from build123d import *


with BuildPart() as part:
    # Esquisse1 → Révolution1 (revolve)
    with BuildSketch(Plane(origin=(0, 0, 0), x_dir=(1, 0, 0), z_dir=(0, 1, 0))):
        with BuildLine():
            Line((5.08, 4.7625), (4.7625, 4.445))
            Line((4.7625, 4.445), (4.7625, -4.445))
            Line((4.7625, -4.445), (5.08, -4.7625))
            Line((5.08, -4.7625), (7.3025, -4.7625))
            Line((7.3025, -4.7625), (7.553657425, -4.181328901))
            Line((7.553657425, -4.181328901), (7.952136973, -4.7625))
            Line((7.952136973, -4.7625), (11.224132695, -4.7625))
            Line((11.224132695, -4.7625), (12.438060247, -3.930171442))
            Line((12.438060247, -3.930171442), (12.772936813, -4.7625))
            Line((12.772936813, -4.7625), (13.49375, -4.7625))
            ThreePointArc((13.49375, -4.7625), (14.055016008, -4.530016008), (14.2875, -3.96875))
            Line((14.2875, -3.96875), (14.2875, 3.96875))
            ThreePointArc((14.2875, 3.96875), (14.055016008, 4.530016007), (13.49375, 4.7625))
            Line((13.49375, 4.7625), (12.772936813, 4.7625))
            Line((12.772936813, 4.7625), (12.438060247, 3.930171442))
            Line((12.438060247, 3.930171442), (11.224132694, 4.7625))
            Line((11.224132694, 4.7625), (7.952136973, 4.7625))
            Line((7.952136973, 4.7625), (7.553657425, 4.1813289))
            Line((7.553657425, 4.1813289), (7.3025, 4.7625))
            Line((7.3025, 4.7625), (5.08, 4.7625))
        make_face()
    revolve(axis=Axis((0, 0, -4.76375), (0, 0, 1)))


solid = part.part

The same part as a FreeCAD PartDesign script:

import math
import FreeCAD as App
import Part
import Sketcher
Q = App.Units.Quantity

doc = App.newDocument("Part")
body = doc.addObject("PartDesign::Body", "Body")

# Sketch on XZ plane
sketch1 = body.newObject("Sketcher::SketchObject", "Sketch")
sketch1.AttachmentSupport = (doc.getObject("XZ_Plane"), [""])
sketch1.MapMode = "FlatFace"
sketch1.addGeometry([
    Part.LineSegment(App.Vector(5.08, -4.76, 0), App.Vector(4.76, -4.45, 0)),  # 0
    Part.LineSegment(App.Vector(4.76, -4.45, 0), App.Vector(4.76, 4.45, 0)),  # 1
    Part.LineSegment(App.Vector(4.76, 4.45, 0), App.Vector(5.08, 4.76, 0)),  # 2
    Part.LineSegment(App.Vector(5.08, 4.76, 0), App.Vector(7.3, 4.76, 0)),  # 3
    Part.LineSegment(App.Vector(7.3, 4.76, 0), App.Vector(7.55, 4.18, 0)),  # 4
    Part.LineSegment(App.Vector(7.55, 4.18, 0), App.Vector(7.95, 4.76, 0)),  # 5
    Part.LineSegment(App.Vector(7.95, 4.76, 0), App.Vector(11.22, 4.76, 0)),  # 6
    Part.LineSegment(App.Vector(11.22, 4.76, 0), App.Vector(12.44, 3.93, 0)),  # 7
    Part.LineSegment(App.Vector(12.44, 3.93, 0), App.Vector(12.77, 4.76, 0)),  # 8
    Part.LineSegment(App.Vector(12.77, 4.76, 0), App.Vector(13.49, 4.76, 0)),  # 9
    Part.ArcOfCircle(Part.Circle(App.Vector(13.49, 3.97, 0), App.Vector(0, 0, 1), 0.79), math.radians(0), math.radians(90)),  # 10
    Part.LineSegment(App.Vector(14.29, 3.97, 0), App.Vector(14.29, -3.97, 0)),  # 11
    Part.ArcOfCircle(Part.Circle(App.Vector(13.49, -3.97, 0), App.Vector(0, 0, 1), 0.79), math.radians(-90), math.radians(0)),  # 12
    Part.LineSegment(App.Vector(13.49, -4.76, 0), App.Vector(12.77, -4.76, 0)),  # 13
    Part.LineSegment(App.Vector(12.77, -4.76, 0), App.Vector(12.44, -3.93, 0)),  # 14
    Part.LineSegment(App.Vector(12.44, -3.93, 0), App.Vector(11.22, -4.76, 0)),  # 15
    Part.LineSegment(App.Vector(11.22, -4.76, 0), App.Vector(7.95, -4.76, 0)),  # 16
    Part.LineSegment(App.Vector(7.95, -4.76, 0), App.Vector(7.55, -4.18, 0)),  # 17
    Part.LineSegment(App.Vector(7.55, -4.18, 0), App.Vector(7.3, -4.76, 0)),  # 18
    Part.LineSegment(App.Vector(7.3, -4.76, 0), App.Vector(5.08, -4.76, 0)),  # 19
], False)
sketch1.addConstraint([
    Sketcher.Constraint("Coincident", 0, 2, 1, 1),
    Sketcher.Constraint("Coincident", 1, 2, 2, 1),
    Sketcher.Constraint("Coincident", 2, 2, 3, 1),
    Sketcher.Constraint("Coincident", 3, 2, 4, 1),
    Sketcher.Constraint("Coincident", 4, 2, 5, 1),
    Sketcher.Constraint("Coincident", 5, 2, 6, 1),
    Sketcher.Constraint("Coincident", 6, 2, 7, 1),
    Sketcher.Constraint("Coincident", 7, 2, 8, 1),
    Sketcher.Constraint("Coincident", 8, 2, 9, 1),
    Sketcher.Constraint("Tangent", 9, 2, 10, 2),
    Sketcher.Constraint("Tangent", 10, 1, 11, 1),
    Sketcher.Constraint("Tangent", 11, 2, 12, 2),
    Sketcher.Constraint("Tangent", 12, 1, 13, 1),
    Sketcher.Constraint("Coincident", 13, 2, 14, 1),
    Sketcher.Constraint("Coincident", 14, 2, 15, 1),
    Sketcher.Constraint("Coincident", 15, 2, 16, 1),
    Sketcher.Constraint("Coincident", 16, 2, 17, 1),
    Sketcher.Constraint("Coincident", 17, 2, 18, 1),
    Sketcher.Constraint("Coincident", 18, 2, 19, 1),
    Sketcher.Constraint("Coincident", 19, 2, 0, 1),
    Sketcher.Constraint("Vertical", 1),
    Sketcher.Constraint("Horizontal", 3),
    Sketcher.Constraint("Horizontal", 6),
    Sketcher.Constraint("Horizontal", 9),
    Sketcher.Constraint("Vertical", 11),
    Sketcher.Constraint("Horizontal", 13),
    Sketcher.Constraint("Horizontal", 16),
    Sketcher.Constraint("Horizontal", 19),
    Sketcher.Constraint("Equal", 10, 12),
    Sketcher.Constraint("Symmetric", 8, 2, 13, 2, -1),
    Sketcher.Constraint("Symmetric", 7, 2, 14, 2, -1),
    Sketcher.Constraint("Symmetric", 6, 2, 15, 2, -1),
    Sketcher.Constraint("Symmetric", 4, 2, 17, 2, -1),
    Sketcher.Constraint("Symmetric", 3, 2, 18, 2, -1),
    Sketcher.Constraint("Perpendicular", 0, 2),
    Sketcher.Constraint("Perpendicular", 5, 7),
    Sketcher.Constraint("Perpendicular", 15, 17),
    Sketcher.Constraint("Horizontal", 3, 2, 5, 2),
    Sketcher.Constraint("Horizontal", 6, 2, 8, 2),
    Sketcher.Constraint("Vertical", 2, 2, 19, 2),
    Sketcher.Constraint("Equal", 0, 2),
    Sketcher.Constraint("Radius", 10, Q("0.03125 in")),
    Sketcher.Constraint("DistanceY", 1, 1, 1, 2, Q("0.35 in")),
    Sketcher.Constraint("DistanceX", -1, 1, 2, 2, Q("0.2 in")),
    Sketcher.Constraint("DistanceX", 1, 2, 3, 2, Q("0.1 in")),
    Sketcher.Constraint("DistanceY", 11, 2, 11, 1, Q("0.3125 in")),
    Sketcher.Constraint("DistanceX", -1, 1, 10, 3, Q("0.53125 in")),
    Sketcher.Constraint("DistanceX", 5, 2, 8, 2, Q("4.8208 mm")),
    Sketcher.Constraint("Distance", 4, Q("0.633119 mm")),
    Sketcher.Constraint("Distance", 5, Q("0.70466 mm")),
    Sketcher.Constraint("Distance", 8, Q("0.89717 mm")),
    Sketcher.Constraint("DistanceX", 6, 1, 6, 2, Q("3.271996 mm")),
    Sketcher.Constraint("DistanceX", 9, 1, 9, 2, Q("0.720813 mm")),
])
revolution = body.newObject("PartDesign::Revolution", "Revolution")
revolution.Profile = sketch1
revolution.ReferenceAxis = (sketch1, ["V_Axis"])
revolution.Angle = 360

doc.recompute()
